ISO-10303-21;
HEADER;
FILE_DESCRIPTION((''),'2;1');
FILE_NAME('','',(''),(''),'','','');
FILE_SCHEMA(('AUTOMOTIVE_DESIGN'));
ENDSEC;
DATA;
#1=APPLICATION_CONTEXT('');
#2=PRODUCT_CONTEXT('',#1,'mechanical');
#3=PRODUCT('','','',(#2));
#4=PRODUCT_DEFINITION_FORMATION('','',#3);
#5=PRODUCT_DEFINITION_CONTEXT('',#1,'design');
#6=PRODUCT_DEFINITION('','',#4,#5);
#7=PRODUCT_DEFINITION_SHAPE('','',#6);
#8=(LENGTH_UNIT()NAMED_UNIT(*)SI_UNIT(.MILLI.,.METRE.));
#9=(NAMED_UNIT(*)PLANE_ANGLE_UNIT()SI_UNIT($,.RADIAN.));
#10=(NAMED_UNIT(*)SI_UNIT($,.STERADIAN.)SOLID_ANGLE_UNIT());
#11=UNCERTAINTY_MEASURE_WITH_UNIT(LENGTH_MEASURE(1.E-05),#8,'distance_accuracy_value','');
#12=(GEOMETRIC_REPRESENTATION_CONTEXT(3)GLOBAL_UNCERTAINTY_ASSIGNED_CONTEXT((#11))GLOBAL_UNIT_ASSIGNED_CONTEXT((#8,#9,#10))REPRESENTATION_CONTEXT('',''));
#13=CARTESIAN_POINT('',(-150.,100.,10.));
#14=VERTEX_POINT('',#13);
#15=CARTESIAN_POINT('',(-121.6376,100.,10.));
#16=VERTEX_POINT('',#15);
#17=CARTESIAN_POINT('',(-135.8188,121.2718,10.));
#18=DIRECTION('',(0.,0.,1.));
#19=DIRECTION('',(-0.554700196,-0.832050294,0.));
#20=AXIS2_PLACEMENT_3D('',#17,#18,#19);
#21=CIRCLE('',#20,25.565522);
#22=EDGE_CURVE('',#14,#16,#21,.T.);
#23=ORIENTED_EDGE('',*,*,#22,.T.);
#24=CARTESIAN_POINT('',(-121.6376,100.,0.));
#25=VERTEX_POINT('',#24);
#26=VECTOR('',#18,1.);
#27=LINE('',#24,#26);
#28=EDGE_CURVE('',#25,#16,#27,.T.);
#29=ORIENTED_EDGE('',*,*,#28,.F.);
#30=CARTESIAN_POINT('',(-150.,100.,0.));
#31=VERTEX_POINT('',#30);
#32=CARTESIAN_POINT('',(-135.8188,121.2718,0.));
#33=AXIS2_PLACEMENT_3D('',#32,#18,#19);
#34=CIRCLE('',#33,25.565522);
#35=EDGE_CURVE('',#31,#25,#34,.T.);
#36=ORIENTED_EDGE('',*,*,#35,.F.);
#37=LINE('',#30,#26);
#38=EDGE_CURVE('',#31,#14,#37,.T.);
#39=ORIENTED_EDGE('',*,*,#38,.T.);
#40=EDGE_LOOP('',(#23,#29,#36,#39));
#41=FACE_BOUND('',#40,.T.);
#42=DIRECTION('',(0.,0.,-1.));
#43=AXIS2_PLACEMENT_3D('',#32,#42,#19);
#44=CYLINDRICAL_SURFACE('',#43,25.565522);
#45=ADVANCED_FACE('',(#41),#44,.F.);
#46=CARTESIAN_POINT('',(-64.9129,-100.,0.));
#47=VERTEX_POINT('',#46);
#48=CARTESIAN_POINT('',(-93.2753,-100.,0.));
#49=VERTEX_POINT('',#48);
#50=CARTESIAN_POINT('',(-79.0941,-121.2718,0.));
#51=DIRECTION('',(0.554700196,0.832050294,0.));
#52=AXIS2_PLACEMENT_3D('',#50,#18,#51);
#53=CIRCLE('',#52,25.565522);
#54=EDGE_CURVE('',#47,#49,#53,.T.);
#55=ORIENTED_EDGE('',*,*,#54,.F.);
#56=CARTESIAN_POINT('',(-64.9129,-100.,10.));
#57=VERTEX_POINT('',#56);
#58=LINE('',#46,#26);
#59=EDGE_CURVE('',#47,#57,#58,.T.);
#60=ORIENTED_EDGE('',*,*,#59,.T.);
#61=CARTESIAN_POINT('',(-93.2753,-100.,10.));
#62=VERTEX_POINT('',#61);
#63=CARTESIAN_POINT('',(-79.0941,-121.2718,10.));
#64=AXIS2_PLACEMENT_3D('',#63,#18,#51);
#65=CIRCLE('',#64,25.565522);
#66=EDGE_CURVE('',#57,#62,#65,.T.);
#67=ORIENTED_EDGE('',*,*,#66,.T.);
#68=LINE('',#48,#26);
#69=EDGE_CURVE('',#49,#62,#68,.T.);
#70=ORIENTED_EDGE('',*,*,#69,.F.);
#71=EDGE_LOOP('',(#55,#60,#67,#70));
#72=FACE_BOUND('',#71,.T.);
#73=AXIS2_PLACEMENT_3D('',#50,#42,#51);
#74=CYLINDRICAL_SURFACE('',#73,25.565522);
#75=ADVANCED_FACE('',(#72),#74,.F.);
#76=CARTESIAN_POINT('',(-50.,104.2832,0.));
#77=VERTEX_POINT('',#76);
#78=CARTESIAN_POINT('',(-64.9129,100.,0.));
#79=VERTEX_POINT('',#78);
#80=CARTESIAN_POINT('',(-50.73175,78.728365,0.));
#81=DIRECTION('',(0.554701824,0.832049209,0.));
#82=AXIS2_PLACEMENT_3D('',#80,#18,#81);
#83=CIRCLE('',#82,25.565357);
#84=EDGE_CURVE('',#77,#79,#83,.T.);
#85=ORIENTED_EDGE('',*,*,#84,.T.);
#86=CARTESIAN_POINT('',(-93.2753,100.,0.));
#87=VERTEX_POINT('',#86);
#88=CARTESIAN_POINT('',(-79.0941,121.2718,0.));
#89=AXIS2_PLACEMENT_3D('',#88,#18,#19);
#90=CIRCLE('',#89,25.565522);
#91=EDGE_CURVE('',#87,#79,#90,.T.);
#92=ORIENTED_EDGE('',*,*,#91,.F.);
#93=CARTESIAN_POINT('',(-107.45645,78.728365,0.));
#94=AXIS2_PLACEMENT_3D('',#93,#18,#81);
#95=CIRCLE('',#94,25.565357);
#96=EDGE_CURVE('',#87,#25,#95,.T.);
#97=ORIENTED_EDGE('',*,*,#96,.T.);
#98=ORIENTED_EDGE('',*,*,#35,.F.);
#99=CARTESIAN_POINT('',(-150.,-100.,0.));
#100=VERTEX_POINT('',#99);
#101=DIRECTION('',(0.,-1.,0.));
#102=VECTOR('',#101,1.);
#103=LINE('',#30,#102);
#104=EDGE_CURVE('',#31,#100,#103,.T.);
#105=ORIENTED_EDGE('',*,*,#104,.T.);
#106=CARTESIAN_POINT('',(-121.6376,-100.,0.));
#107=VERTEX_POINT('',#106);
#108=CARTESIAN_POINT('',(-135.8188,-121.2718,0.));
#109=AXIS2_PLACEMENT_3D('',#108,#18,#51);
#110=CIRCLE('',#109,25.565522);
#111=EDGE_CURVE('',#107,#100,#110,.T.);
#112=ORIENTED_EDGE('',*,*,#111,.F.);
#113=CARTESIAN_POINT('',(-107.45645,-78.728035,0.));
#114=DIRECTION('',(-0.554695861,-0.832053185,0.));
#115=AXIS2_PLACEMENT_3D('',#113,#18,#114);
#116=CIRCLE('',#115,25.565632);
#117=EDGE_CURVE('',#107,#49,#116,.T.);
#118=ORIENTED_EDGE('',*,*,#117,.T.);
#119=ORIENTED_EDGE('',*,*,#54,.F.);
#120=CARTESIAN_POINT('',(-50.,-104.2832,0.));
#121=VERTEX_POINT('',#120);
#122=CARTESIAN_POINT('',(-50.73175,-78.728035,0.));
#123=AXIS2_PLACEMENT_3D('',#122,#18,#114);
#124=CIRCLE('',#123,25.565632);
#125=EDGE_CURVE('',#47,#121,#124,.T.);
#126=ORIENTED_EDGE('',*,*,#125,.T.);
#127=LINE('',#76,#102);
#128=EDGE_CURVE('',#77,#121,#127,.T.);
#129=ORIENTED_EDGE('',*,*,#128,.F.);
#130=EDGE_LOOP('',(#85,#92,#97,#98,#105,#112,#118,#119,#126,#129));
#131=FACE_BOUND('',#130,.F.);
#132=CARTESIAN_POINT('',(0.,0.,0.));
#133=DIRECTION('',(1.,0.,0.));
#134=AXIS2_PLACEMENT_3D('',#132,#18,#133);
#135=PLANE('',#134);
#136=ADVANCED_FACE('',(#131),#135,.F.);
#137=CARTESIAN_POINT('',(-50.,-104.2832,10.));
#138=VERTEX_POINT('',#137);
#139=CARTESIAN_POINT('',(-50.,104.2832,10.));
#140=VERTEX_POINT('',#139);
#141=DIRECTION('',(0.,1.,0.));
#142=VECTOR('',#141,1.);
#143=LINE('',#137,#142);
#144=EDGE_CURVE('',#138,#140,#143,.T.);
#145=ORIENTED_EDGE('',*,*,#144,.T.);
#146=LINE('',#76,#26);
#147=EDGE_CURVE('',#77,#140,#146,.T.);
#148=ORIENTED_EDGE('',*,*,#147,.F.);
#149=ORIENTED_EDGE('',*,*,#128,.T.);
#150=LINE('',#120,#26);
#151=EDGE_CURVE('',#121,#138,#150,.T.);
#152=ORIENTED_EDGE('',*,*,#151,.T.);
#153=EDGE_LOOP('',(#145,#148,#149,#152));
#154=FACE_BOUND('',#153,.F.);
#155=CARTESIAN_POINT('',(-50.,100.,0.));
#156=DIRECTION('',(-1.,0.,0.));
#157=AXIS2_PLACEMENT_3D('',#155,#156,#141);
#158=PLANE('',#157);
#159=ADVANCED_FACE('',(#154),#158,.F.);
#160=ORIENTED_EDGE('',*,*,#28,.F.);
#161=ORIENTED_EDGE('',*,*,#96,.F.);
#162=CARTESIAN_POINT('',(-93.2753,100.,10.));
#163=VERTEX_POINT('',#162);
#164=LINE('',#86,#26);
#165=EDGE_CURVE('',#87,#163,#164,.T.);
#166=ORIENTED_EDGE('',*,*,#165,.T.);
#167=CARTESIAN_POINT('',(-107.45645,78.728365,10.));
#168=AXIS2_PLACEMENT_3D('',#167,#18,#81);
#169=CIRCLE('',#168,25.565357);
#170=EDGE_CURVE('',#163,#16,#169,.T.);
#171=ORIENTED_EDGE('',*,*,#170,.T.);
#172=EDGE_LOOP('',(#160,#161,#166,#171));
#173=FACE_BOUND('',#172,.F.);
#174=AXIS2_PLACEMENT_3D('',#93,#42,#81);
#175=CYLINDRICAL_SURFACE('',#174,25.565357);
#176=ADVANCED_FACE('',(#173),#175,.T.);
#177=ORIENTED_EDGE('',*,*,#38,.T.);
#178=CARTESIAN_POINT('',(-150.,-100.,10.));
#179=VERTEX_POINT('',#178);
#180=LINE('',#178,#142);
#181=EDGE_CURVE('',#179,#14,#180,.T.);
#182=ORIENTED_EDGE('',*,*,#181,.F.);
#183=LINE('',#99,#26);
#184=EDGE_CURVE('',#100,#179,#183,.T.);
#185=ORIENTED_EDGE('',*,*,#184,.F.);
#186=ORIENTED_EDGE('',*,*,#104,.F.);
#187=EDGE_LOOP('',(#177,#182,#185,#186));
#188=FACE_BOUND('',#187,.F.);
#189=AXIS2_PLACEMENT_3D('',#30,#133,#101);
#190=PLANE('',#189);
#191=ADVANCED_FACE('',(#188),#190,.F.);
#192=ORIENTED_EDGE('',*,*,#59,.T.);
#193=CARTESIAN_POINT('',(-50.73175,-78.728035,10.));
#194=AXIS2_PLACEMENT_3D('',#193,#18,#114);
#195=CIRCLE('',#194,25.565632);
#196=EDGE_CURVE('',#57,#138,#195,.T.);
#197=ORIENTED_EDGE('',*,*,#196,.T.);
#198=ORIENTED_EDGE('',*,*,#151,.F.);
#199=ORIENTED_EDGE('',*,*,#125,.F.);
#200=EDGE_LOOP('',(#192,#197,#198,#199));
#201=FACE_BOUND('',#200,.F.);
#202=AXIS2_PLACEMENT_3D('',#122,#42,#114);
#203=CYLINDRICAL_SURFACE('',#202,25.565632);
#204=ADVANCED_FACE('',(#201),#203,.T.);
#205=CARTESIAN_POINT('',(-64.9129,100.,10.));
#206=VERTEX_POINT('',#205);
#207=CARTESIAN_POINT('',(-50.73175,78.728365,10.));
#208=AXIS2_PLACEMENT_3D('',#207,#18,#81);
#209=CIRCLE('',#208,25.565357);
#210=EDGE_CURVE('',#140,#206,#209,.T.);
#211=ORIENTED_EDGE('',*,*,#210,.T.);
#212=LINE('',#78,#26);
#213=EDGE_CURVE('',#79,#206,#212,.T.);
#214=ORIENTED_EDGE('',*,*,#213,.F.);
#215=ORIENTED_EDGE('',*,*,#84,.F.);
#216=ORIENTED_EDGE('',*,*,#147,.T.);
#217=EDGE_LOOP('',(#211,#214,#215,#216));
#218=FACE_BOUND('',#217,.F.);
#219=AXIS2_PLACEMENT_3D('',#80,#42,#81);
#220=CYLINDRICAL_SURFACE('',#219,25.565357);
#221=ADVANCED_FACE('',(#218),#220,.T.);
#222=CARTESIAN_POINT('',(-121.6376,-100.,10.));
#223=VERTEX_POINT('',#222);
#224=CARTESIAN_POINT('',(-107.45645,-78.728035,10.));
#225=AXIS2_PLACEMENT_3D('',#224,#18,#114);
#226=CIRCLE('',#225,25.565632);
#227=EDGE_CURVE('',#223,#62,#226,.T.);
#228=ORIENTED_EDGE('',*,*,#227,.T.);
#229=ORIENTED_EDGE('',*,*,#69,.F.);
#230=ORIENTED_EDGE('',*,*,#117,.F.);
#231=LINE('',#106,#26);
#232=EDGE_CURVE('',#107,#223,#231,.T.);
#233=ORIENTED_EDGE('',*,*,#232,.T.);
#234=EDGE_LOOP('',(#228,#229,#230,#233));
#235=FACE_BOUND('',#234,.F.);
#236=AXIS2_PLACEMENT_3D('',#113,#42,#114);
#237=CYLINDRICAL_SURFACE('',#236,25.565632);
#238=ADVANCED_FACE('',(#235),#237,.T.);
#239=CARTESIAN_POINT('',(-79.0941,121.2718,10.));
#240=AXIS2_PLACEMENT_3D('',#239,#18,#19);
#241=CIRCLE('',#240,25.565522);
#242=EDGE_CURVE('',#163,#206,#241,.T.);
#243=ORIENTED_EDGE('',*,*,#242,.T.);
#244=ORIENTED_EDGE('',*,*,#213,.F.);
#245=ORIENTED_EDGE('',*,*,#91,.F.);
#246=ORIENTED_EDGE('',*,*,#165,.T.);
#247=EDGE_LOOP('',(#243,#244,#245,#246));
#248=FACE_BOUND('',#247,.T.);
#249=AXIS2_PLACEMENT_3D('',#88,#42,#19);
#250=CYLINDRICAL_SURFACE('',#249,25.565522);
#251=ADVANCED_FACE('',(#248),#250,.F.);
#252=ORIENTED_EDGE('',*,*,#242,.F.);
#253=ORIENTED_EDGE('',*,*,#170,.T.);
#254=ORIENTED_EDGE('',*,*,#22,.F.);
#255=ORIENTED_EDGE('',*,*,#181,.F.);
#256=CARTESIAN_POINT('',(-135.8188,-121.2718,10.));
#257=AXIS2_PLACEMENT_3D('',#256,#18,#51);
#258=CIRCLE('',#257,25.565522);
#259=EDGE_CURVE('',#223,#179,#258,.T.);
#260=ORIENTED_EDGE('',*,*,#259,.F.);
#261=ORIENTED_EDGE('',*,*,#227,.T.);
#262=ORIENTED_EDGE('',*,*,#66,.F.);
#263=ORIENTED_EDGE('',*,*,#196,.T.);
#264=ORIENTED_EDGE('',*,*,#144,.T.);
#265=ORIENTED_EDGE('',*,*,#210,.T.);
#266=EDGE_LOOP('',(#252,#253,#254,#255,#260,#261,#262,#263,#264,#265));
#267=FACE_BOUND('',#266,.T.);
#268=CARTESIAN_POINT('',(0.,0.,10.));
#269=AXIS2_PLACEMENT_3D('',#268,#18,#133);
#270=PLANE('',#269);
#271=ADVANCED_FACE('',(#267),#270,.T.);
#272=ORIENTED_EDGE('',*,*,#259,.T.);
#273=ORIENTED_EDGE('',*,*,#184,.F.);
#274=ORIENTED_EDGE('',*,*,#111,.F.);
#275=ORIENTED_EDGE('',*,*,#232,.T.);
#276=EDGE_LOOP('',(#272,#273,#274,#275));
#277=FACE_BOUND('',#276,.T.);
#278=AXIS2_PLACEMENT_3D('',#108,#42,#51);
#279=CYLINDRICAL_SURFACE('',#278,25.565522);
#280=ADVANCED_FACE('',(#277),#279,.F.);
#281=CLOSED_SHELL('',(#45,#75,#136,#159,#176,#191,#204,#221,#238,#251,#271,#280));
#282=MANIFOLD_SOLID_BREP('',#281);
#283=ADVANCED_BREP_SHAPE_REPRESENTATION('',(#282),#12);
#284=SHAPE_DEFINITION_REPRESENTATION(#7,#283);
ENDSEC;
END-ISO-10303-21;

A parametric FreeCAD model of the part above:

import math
import FreeCAD as App
import Part
import Sketcher
from FreeCAD import Vector

doc = App.newDocument("Part")
body = doc.addObject("PartDesign::Body", "Body")

# Sketch on XY plane
sketch1 = body.newObject("Sketcher::SketchObject", "Sketch")
sketch1.AttachmentSupport = (doc.getObject("XY_Plane"), [""])
sketch1.MapMode = "FlatFace"
sketch1.addGeometry([
    Part.LineSegment(Vector(-150, 100, 0), Vector(-150, -100, 0)),  # 0
    Part.ArcOfCircle(Part.Circle(Vector(-135.8188, -121.2718, 0), Vector(0, 0, 1), 25.565522), math.radians(56.309932), math.radians(123.690068)),  # 1
    Part.ArcOfCircle(Part.Circle(Vector(-107.4565, -78.7282, 0), Vector(0, 0, 1), 25.565466), math.radians(-123.689881), math.radians(-56.309932)),  # 2
    Part.ArcOfCircle(Part.Circle(Vector(-79.0941, -121.2718, 0), Vector(0, 0, 1), 25.565522), math.radians(56.309932), math.radians(123.690068)),  # 3
    Part.ArcOfCircle(Part.Circle(Vector(-50.7318, -78.7282, 0), Vector(0, 0, 1), 25.565466), math.radians(-123.689881), math.radians(-88.359711)),  # 4
    Part.LineSegment(Vector(-50, -104.2832, 0), Vector(-50, 104.2832, 0)),  # 5
    Part.ArcOfCircle(Part.Circle(Vector(-50.7318, 78.7282, 0), Vector(0, 0, 1), 25.565522), math.radians(88.359711), math.radians(123.689881)),  # 6
    Part.ArcOfCircle(Part.Circle(Vector(-79.0941, 121.2718, 0), Vector(0, 0, 1), 25.565522), math.radians(-123.690068), math.radians(-56.309932)),  # 7
    Part.ArcOfCircle(Part.Circle(Vector(-107.4565, 78.7282, 0), Vector(0, 0, 1), 25.565522), math.radians(56.309932), math.radians(123.689881)),  # 8
    Part.ArcOfCircle(Part.Circle(Vector(-135.8188, 121.2718, 0), Vector(0, 0, 1), 25.565522), math.radians(-123.690068), math.radians(-56.309932)),  # 9
], False)
sketch1.addConstraint([
    Sketcher.Constraint("Coincident", 0, 2, 1, 2),
    Sketcher.Constraint("Tangent", 1, 1, 2, 1),
    Sketcher.Constraint("Tangent", 2, 2, 3, 2),
    Sketcher.Constraint("Tangent", 3, 1, 4, 1),
    Sketcher.Constraint("Coincident", 4, 2, 5, 1),
    Sketcher.Constraint("Coincident", 5, 2, 6, 1),
    Sketcher.Constraint("Tangent", 6, 2, 7, 2),
    Sketcher.Constraint("Tangent", 7, 1, 8, 1),
    Sketcher.Constraint("Tangent", 8, 2, 9, 2),
    Sketcher.Constraint("Coincident", 9, 1, 0, 1),
    Sketcher.Constraint("Vertical", 0),
    Sketcher.Constraint("Vertical", 5),
    Sketcher.Constraint("Equal", 1, 2),
    Sketcher.Constraint("Equal", 2, 3),
    Sketcher.Constraint("Equal", 3, 4),
    Sketcher.Constraint("Equal", 4, 6),
    Sketcher.Constraint("Equal", 6, 7),
    Sketcher.Constraint("Equal", 7, 8),
    Sketcher.Constraint("Equal", 8, 9),
    Sketcher.Constraint("Symmetric", 4, 3, 6, 3, -1),
    Sketcher.Constraint("Symmetric", 2, 3, 8, 3, -1),
    Sketcher.Constraint("Horizontal", 1, 3, 3, 3),
    Sketcher.Constraint("Horizontal", 2, 3, 4, 3),
    Sketcher.Constraint("Horizontal", 7, 3, 9, 3),
    Sketcher.Constraint("Horizontal", 0, 2, 1, 1),
    Sketcher.Constraint("DistanceY", 0, 2, 0, 1, 200.0),
    Sketcher.Constraint("DistanceX", 0, 2, -1, 1, 150.0),
    Sketcher.Constraint("DistanceX", 4, 2, -1, 1, 50.0),
    Sketcher.Constraint("Radius", 1, 25.5655),
    Sketcher.Constraint("DistanceY", 5, 1, 5, 2, 208.5664),
])
pad1 = body.newObject("PartDesign::Pad", "Pad")
pad1.Profile = sketch1
pad1.Length = 10

doc.recompute()
